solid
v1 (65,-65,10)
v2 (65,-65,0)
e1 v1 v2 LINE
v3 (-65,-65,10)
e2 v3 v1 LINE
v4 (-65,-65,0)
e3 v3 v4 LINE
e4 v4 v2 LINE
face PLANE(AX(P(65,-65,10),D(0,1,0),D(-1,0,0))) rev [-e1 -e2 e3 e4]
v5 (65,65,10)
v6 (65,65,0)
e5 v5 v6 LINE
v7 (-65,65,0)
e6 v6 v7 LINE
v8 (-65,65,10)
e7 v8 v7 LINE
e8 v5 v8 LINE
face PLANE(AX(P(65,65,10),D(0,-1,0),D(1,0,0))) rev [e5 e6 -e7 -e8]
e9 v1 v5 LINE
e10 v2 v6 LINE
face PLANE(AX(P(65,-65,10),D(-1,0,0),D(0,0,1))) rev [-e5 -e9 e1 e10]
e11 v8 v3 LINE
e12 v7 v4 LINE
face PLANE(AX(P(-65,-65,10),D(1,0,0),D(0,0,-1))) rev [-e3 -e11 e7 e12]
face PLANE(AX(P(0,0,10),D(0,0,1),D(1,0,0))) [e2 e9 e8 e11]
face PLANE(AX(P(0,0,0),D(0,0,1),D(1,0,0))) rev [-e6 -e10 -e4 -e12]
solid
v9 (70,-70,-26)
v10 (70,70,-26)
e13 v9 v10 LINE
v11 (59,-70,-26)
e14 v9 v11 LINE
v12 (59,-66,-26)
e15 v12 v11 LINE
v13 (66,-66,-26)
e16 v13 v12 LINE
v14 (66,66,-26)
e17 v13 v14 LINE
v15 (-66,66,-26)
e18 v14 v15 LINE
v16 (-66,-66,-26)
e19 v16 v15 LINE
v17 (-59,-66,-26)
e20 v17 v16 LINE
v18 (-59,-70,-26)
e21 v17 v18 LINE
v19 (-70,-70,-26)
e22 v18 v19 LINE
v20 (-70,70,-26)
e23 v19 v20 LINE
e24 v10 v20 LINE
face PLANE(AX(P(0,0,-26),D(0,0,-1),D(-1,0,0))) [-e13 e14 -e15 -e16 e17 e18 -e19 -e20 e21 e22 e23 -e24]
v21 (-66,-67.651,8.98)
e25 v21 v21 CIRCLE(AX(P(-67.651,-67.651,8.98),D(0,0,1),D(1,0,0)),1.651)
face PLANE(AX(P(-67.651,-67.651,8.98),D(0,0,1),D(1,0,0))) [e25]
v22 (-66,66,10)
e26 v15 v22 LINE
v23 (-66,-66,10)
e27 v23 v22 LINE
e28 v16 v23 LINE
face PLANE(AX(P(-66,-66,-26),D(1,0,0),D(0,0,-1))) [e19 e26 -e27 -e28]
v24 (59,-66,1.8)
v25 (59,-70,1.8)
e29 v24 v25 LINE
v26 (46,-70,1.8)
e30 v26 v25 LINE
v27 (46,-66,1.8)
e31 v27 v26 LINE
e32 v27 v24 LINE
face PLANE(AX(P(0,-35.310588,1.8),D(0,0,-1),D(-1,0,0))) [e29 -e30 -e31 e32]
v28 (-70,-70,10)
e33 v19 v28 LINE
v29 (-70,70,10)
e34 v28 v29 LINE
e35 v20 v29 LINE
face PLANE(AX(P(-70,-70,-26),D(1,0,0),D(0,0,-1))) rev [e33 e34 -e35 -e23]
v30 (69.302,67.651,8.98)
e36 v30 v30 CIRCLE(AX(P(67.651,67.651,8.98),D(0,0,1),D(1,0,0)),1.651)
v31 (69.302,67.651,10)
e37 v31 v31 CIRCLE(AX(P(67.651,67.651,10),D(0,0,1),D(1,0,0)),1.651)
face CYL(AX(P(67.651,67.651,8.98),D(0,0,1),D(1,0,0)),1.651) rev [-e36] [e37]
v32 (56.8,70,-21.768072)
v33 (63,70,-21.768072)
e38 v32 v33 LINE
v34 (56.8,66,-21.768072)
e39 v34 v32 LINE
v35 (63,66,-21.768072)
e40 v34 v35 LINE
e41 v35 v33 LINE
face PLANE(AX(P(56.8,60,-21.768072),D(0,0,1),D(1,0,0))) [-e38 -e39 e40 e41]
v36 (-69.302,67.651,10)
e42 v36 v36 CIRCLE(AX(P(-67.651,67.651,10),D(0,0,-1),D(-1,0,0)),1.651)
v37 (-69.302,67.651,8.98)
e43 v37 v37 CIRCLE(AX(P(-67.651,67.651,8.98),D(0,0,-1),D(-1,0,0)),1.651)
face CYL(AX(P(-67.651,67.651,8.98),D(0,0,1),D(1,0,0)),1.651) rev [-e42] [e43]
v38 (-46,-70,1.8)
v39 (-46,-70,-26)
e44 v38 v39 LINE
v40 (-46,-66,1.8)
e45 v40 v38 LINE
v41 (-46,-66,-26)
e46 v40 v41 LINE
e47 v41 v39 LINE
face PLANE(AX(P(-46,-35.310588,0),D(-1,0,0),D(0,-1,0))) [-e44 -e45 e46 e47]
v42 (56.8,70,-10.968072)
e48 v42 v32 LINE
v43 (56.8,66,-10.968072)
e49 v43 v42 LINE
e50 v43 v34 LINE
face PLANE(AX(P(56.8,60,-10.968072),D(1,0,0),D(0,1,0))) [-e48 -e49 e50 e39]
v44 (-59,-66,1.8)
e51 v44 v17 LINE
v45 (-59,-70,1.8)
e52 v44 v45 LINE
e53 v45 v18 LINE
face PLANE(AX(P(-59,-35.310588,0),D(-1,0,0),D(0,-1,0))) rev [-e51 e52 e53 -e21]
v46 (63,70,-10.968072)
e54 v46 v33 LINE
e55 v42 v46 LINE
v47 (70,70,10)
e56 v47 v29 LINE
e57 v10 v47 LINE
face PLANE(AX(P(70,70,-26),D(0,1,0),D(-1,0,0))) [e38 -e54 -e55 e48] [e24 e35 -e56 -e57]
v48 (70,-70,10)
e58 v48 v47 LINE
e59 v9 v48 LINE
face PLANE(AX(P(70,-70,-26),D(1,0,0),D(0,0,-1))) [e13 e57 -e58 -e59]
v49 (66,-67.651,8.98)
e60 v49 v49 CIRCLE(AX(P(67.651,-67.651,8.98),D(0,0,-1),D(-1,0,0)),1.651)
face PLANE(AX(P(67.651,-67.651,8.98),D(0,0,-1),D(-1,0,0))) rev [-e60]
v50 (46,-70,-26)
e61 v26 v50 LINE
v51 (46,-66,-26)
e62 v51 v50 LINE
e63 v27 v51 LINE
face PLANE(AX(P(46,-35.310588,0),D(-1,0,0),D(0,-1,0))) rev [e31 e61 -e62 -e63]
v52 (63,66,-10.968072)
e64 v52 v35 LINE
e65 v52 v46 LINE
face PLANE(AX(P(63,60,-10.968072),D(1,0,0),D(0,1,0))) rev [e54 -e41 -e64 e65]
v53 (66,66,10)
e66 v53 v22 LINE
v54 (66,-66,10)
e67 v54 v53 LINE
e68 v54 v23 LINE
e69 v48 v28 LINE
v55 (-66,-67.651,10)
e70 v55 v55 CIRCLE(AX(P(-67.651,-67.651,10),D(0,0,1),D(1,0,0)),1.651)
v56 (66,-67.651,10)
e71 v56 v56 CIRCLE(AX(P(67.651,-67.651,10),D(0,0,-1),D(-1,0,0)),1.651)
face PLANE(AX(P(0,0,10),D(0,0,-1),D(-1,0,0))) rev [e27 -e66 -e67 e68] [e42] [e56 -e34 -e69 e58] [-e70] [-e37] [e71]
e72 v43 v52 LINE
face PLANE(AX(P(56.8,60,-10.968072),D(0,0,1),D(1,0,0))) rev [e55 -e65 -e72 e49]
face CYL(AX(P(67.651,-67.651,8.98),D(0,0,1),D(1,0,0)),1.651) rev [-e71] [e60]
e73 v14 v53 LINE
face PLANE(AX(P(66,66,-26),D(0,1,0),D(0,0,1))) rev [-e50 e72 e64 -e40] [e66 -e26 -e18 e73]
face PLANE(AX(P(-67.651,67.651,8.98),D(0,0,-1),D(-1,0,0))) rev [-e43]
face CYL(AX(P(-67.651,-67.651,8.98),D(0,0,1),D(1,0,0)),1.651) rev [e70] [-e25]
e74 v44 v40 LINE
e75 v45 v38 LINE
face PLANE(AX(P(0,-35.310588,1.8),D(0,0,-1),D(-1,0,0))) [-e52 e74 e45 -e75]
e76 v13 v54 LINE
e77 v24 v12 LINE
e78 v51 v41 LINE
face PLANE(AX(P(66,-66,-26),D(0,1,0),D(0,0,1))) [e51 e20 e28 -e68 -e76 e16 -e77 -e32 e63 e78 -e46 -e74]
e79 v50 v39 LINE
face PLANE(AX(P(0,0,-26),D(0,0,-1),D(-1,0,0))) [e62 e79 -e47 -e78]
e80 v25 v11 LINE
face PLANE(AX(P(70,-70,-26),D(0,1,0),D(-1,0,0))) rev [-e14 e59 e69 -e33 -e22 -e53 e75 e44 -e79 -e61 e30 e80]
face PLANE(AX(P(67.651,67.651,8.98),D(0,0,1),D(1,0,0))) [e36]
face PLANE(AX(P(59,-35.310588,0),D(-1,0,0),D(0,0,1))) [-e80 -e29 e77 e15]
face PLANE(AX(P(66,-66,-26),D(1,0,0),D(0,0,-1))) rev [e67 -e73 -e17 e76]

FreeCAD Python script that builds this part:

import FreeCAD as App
import Part
import Sketcher

V = App.Vector
Q = App.Units.Quantity


def add_polygon(sketch, points):
    """Adds a closed chain of lines whose ends are joined by coincident constraints."""
    first, n = sketch.GeometryCount, len(points)
    for a, b in zip(points, points[1:] + points[:1]):
        sketch.addGeometry(Part.LineSegment(App.Vector(*a, 0), App.Vector(*b, 0)), False)
    for i in range(n):
        sketch.addConstraint(Sketcher.Constraint("Coincident", first + i, 2, first + (i + 1) % n, 1))

doc = App.newDocument("Part")
params = doc.addObject("Spreadsheet::Sheet", "Params")
for row, (alias, value) in enumerate([
    ("sketch1_width", "130 mm"),
    ("pad1_length", "10 mm"),
    ("sketch2_width", "140 mm"),
    ("sketch2_width2", "132 mm"),
    ("pad2_length", "36 mm"),
    ("pocket1_length", "1.02 mm"),
    ("sketch4_width", "13 mm"),
    ("sketch4_height", "27.8 mm"),
    ("pocket2_length", "4 mm"),
    ("sketch5_width", "6.2 mm"),
    ("sketch5_height", "10.8 mm"),
    ("pocket3_length", "10 mm"),
], start=1):
    params.set(f"A{row}", alias)
    params.set(f"B{row}", "=" + value)
    params.setAlias(f"B{row}", alias)

body = doc.addObject("PartDesign::Body", "Body")

# Sketch on XY plane
sketch1 = doc.addObject("Sketcher::SketchObject", "Sketch")
body.addObject(sketch1)
sketch1.AttachmentSupport = (doc.XY_Plane, [""])
sketch1.MapMode = "FlatFace"
add_polygon(sketch1, [(-65, 65), (-65, -65), (65, -65), (65, 65)])  # lines 0-3
sketch1.addConstraint(Sketcher.Constraint("Vertical", 0))
sketch1.addConstraint(Sketcher.Constraint("Horizontal", 1))
sketch1.addConstraint(Sketcher.Constraint("Vertical", 2))
sketch1.addConstraint(Sketcher.Constraint("Horizontal", 3))
sketch1.addConstraint(Sketcher.Constraint("Symmetric", 0, 2, 2, 2, -1, 1))
sketch1.addConstraint(Sketcher.Constraint("Equal", 3, 0))
sketch1.addConstraint(Sketcher.Constraint("DistanceX", 1, 1, 1, 2, Q("130 mm")))
sketch1.setExpression("Constraints[10]", "Params.sketch1_width")
pad1 = doc.addObject("PartDesign::Pad", "Pad")
body.addObject(pad1)
pad1.Profile = sketch1
pad1.setExpression("Length", "Params.pad1_length")
body2 = doc.addObject("PartDesign::Body", "Body001")

# Sketch on XY plane
sketch2 = doc.addObject("Sketcher::SketchObject", "Sketch001")
body2.addObject(sketch2)
sketch2.AttachmentSupport = (doc.getObject("XY_Plane001"), [""])
sketch2.MapMode = "FlatFace"
sketch2.AttachmentOffset = App.Placement(V(0, 0, 10), App.Rotation())
add_polygon(sketch2, [(-70, 70), (-70, -70), (70, -70), (70, 70)])  # lines 0-3
add_polygon(sketch2, [(66, -66), (-66, -66), (-66, 66), (66, 66)])  # lines 4-7
sketch2.addConstraint(Sketcher.Constraint("Vertical", 0))
sketch2.addConstraint(Sketcher.Constraint("Horizontal", 1))
sketch2.addConstraint(Sketcher.Constraint("Vertical", 2))
sketch2.addConstraint(Sketcher.Constraint("Horizontal", 3))
sketch2.addConstraint(Sketcher.Constraint("Horizontal", 4))
sketch2.addConstraint(Sketcher.Constraint("Vertical", 5))
sketch2.addConstraint(Sketcher.Constraint("Horizontal", 6))
sketch2.addConstraint(Sketcher.Constraint("Vertical", 7))
sketch2.addConstraint(Sketcher.Constraint("Symmetric", 0, 2, 2, 2, -1, 1))
sketch2.addConstraint(Sketcher.Constraint("Symmetric", 4, 2, 6, 2, -1, 1))
sketch2.addConstraint(Sketcher.Constraint("Equal", 3, 0))
sketch2.addConstraint(Sketcher.Constraint("Equal", 6, 5))
sketch2.addConstraint(Sketcher.Constraint("DistanceX", 1, 1, 1, 2, Q("140 mm")))
sketch2.addConstraint(Sketcher.Constraint("DistanceX", 4, 2, 4, 1, Q("132 mm")))
sketch2.setExpression("Constraints[20]", "Params.sketch2_width")
sketch2.setExpression("Constraints[21]", "Params.sketch2_width2")
pad2 = doc.addObject("PartDesign::Pad", "Pad001")
body2.addObject(pad2)
pad2.Profile = sketch2
pad2.setExpression("Length", "Params.pad2_length")
pad2.Reversed = True

# Sketch on XY plane
sketch3 = doc.addObject("Sketcher::SketchObject", "Sketch002")
body2.addObject(sketch3)
sketch3.AttachmentSupport = (doc.getObject("XY_Plane001"), [""])
sketch3.MapMode = "FlatFace"
sketch3.AttachmentOffset = App.Placement(V(0, 0, 10), App.Rotation())
sketch3.addGeometry(Part.Circle(V(67.7, 67.7, 0), V(0, 0, 1), 1.7), False)
sketch3.addGeometry(Part.Circle(V(-67.7, 67.7, 0), V(0, 0, 1), 1.7), False)
sketch3.addGeometry(Part.Circle(V(67.7, -67.7, 0), V(0, 0, 1), 1.7), False)
sketch3.addGeometry(Part.Circle(V(-67.7, -67.7, 0), V(0, 0, 1), 1.7), False)
sketch3.addConstraint(Sketcher.Constraint("Equal", 0, 1))
sketch3.addConstraint(Sketcher.Constraint("Equal", 1, 2))
sketch3.addConstraint(Sketcher.Constraint("Equal", 2, 3))
sketch3.addConstraint(Sketcher.Constraint("Symmetric", 1, 3, 2, 3, -1, 1))
sketch3.addConstraint(Sketcher.Constraint("Symmetric", 0, 3, 3, 3, -1, 1))
sketch3.addConstraint(Sketcher.Constraint("Symmetric", 0, 3, 1, 3, -2))
sketch3.addConstraint(Sketcher.Constraint("Diameter", 0, Q("3.302 mm")))
sketch3.addConstraint(Sketcher.Constraint("DistanceX", -1, 1, 0, 3, Q("67.651 mm")))
sketch3.addConstraint(Sketcher.Constraint("DistanceY", -1, 1, 0, 3, Q("67.651 mm")))
pocket1 = doc.addObject("PartDesign::Pocket", "Pocket")
body2.addObject(pocket1)
pocket1.Profile = sketch3
pocket1.setExpression("Length", "Params.pocket1_length")

# Sketch on XZ plane
sketch4 = doc.addObject("Sketcher::SketchObject", "Sketch003")
body2.addObject(sketch4)
sketch4.AttachmentSupport = (doc.getObject("XZ_Plane001"), [""])
sketch4.MapMode = "FlatFace"
sketch4.AttachmentOffset = App.Placement(V(0, 0, 70), App.Rotation())
add_polygon(sketch4, [(-59, 2), (-59, -26), (-46, -26), (-46, 2)])  # lines 0-3
add_polygon(sketch4, [(46, 2), (46, -26), (59, -26), (59, 2)])  # lines 4-7
sketch4.addConstraint(Sketcher.Constraint("Vertical", 0))
sketch4.addConstraint(Sketcher.Constraint("Horizontal", 1))
sketch4.addConstraint(Sketcher.Constraint("Vertical", 2))
sketch4.addConstraint(Sketcher.Constraint("Horizontal", 3))
sketch4.addConstraint(Sketcher.Constraint("Vertical", 4))
sketch4.addConstraint(Sketcher.Constraint("Horizontal", 5))
sketch4.addConstraint(Sketcher.Constraint("Vertical", 6))
sketch4.addConstraint(Sketcher.Constraint("Horizontal", 7))
sketch4.addConstraint(Sketcher.Constraint("Symmetric", 1, 2, 4, 2, -2))
sketch4.addConstraint(Sketcher.Constraint("Symmetric", 3, 2, 6, 2, -2))
sketch4.addConstraint(Sketcher.Constraint("DistanceX", 1, 1, 1, 2, Q("13 mm")))
sketch4.addConstraint(Sketcher.Constraint("DistanceY", 0, 2, 0, 1, Q("27.8 mm")))
sketch4.addConstraint(Sketcher.Constraint("DistanceX", 0, 2, -1, 1, Q("59 mm")))
sketch4.addConstraint(Sketcher.Constraint("DistanceY", 0, 2, -1, 1, Q("26 mm")))
sketch4.setExpression("Constraints[18]", "Params.sketch4_width")
sketch4.setExpression("Constraints[19]", "Params.sketch4_height")
pocket2 = doc.addObject("PartDesign::Pocket", "Pocket001")
body2.addObject(pocket2)
pocket2.Profile = sketch4
pocket2.setExpression("Length", "Params.pocket2_length")

# Sketch on XZ plane
sketch5 = doc.addObject("Sketcher::SketchObject", "Sketch004")
body2.addObject(sketch5)
sketch5.AttachmentSupport = (doc.getObject("XZ_Plane001"), [""])
sketch5.MapMode = "FlatFace"
sketch5.AttachmentOffset = App.Placement(V(0, 0, -70), App.Rotation())
add_polygon(sketch5, [(57, -22), (57, -11), (63, -11), (63, -22)])  # lines 0-3
sketch5.addConstraint(Sketcher.Constraint("Vertical", 0))
sketch5.addConstraint(Sketcher.Constraint("Horizontal", 1))
sketch5.addConstraint(Sketcher.Constraint("Vertical", 2))
sketch5.addConstraint(Sketcher.Constraint("Horizontal", 3))
sketch5.addConstraint(Sketcher.Constraint("DistanceX", 1, 1, 1, 2, Q("6.2 mm")))
sketch5.addConstraint(Sketcher.Constraint("DistanceY", 0, 1, 0, 2, Q("10.8 mm")))
sketch5.addConstraint(Sketcher.Constraint("DistanceX", -1, 1, 1, 2, Q("63 mm")))
sketch5.addConstraint(Sketcher.Constraint("DistanceY", 0, 2, -1, 1, Q("10.968072 mm")))
sketch5.setExpression("Constraints[8]", "Params.sketch5_width")
sketch5.setExpression("Constraints[9]", "Params.sketch5_height")
pocket3 = doc.addObject("PartDesign::Pocket", "Pocket002")
body2.addObject(pocket3)
pocket3.Profile = sketch5
pocket3.setExpression("Length", "Params.pocket3_length")
pocket3.Reversed = True

doc.recompute()
